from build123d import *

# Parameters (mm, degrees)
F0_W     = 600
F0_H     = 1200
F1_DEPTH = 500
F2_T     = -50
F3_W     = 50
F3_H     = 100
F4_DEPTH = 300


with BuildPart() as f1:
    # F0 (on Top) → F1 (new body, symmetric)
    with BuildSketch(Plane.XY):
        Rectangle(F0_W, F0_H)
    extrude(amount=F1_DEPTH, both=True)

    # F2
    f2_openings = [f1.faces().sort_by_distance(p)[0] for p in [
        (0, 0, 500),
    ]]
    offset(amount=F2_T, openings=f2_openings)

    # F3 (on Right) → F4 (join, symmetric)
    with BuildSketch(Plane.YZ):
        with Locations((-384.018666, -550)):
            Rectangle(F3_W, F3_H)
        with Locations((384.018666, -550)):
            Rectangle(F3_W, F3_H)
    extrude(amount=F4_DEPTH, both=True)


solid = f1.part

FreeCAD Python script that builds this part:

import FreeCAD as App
import Part
import Sketcher

V = App.Vector
Q = App.Units.Quantity


def faces_at(feature, points):
    """Names of the faces that lie closest to the given points."""
    faces = feature.Shape.Faces
    near = lambda p: min(range(len(faces)), key=lambda i: faces[i].distToShape(Part.Vertex(*p))[0])
    return sorted({f"Face{near(p) + 1}" for p in points})


def add_polygon(sketch, points):
    """Adds a closed chain of lines whose ends are joined by coincident constraints."""
    first, n = sketch.GeometryCount, len(points)
    for a, b in zip(points, points[1:] + points[:1]):
        sketch.addGeometry(Part.LineSegment(App.Vector(*a, 0), App.Vector(*b, 0)), False)
    for i in range(n):
        sketch.addConstraint(Sketcher.Constraint("Coincident", first + i, 2, first + (i + 1) % n, 1))

doc = App.newDocument("Part")
params = doc.addObject("Spreadsheet::Sheet", "Params")
for row, (alias, value) in enumerate([
    ("sketch1_width", "600 mm"),
    ("sketch1_height", "1200 mm"),
    ("pad1_length", "1000 mm"),
    ("thickness_wall", "50 mm"),
    ("sketch2_width", "50 mm"),
    ("sketch2_height", "100 mm"),
    ("pad2_length", "600 mm"),
], start=1):
    params.set(f"A{row}", alias)
    params.set(f"B{row}", "=" + value)
    params.setAlias(f"B{row}", alias)

body = doc.addObject("PartDesign::Body", "Body")

sketch1 = body.newObject("Sketcher::SketchObject", "Sketch")
sketch1.AttachmentSupport = (doc.getObject("XY_Plane"), [""])
sketch1.MapMode = "FlatFace"
add_polygon(sketch1, [(-300, 600), (-300, -600), (300, -600), (300, 600)])
sketch1.addConstraint([
    Sketcher.Constraint("Vertical", 0),
    Sketcher.Constraint("Horizontal", 1),
    Sketcher.Constraint("Vertical", 2),
    Sketcher.Constraint("Horizontal", 3),
    Sketcher.Constraint("Symmetric", 0, 2, 2, 2, -1, 1),
    Sketcher.Constraint("DistanceX", 1, 1, 1, 2, Q("600 mm")),
    Sketcher.Constraint("DistanceY", 0, 2, 0, 1, Q("1200 mm")),
])
sketch1.setExpression("Constraints[9]", "Params.sketch1_width")
sketch1.setExpression("Constraints[10]", "Params.sketch1_height")
pad1 = body.newObject("PartDesign::Pad", "Pad")
pad1.Profile = sketch1
pad1.setExpression("Length", "Params.pad1_length")
pad1.Midplane = True
doc.recompute()

thickness = body.newObject("PartDesign::Thickness", "Thickness")
thickness.Base = (pad1, faces_at(pad1, [(0, 0, 500)]))
thickness.setExpression("Value", "Params.thickness_wall")
thickness.Reversed = True
thickness.Join = "Arc"

sketch2 = body.newObject("Sketcher::SketchObject", "Sketch001")
sketch2.AttachmentSupport = (doc.getObject("YZ_Plane"), [""])
sketch2.MapMode = "FlatFace"
add_polygon(sketch2, [(-409, -500), (-409, -600), (-359, -600), (-359, -500)])
add_polygon(sketch2, [(359, -500), (359, -600), (409, -600), (409, -500)])
sketch2.addConstraint([
    Sketcher.Constraint("Vertical", 0),
    Sketcher.Constraint("Horizontal", 1),
    Sketcher.Constraint("Vertical", 2),
    Sketcher.Constraint("Horizontal", 3),
    Sketcher.Constraint("Vertical", 4),
    Sketcher.Constraint("Horizontal", 5),
    Sketcher.Constraint("Vertical", 6),
    Sketcher.Constraint("Horizontal", 7),
    Sketcher.Constraint("Symmetric", 1, 2, 4, 2, -2),
    Sketcher.Constraint("Symmetric", 3, 2, 6, 2, -2),
    Sketcher.Constraint("DistanceX", 1, 1, 1, 2, Q("50 mm")),
    Sketcher.Constraint("DistanceY", 0, 2, 0, 1, Q("100 mm")),
    Sketcher.Constraint("DistanceY", 0, 2, -1, 1, Q("600 mm")),
    Sketcher.Constraint("DistanceX", 1, 2, 4, 2, Q("718.037332 mm")),
])
sketch2.setExpression("Constraints[18]", "Params.sketch2_width")
sketch2.setExpression("Constraints[19]", "Params.sketch2_height")
pad2 = body.newObject("PartDesign::Pad", "Pad001")
pad2.Profile = sketch2
pad2.setExpression("Length", "Params.pad2_length")
pad2.Midplane = True

doc.recompute()
